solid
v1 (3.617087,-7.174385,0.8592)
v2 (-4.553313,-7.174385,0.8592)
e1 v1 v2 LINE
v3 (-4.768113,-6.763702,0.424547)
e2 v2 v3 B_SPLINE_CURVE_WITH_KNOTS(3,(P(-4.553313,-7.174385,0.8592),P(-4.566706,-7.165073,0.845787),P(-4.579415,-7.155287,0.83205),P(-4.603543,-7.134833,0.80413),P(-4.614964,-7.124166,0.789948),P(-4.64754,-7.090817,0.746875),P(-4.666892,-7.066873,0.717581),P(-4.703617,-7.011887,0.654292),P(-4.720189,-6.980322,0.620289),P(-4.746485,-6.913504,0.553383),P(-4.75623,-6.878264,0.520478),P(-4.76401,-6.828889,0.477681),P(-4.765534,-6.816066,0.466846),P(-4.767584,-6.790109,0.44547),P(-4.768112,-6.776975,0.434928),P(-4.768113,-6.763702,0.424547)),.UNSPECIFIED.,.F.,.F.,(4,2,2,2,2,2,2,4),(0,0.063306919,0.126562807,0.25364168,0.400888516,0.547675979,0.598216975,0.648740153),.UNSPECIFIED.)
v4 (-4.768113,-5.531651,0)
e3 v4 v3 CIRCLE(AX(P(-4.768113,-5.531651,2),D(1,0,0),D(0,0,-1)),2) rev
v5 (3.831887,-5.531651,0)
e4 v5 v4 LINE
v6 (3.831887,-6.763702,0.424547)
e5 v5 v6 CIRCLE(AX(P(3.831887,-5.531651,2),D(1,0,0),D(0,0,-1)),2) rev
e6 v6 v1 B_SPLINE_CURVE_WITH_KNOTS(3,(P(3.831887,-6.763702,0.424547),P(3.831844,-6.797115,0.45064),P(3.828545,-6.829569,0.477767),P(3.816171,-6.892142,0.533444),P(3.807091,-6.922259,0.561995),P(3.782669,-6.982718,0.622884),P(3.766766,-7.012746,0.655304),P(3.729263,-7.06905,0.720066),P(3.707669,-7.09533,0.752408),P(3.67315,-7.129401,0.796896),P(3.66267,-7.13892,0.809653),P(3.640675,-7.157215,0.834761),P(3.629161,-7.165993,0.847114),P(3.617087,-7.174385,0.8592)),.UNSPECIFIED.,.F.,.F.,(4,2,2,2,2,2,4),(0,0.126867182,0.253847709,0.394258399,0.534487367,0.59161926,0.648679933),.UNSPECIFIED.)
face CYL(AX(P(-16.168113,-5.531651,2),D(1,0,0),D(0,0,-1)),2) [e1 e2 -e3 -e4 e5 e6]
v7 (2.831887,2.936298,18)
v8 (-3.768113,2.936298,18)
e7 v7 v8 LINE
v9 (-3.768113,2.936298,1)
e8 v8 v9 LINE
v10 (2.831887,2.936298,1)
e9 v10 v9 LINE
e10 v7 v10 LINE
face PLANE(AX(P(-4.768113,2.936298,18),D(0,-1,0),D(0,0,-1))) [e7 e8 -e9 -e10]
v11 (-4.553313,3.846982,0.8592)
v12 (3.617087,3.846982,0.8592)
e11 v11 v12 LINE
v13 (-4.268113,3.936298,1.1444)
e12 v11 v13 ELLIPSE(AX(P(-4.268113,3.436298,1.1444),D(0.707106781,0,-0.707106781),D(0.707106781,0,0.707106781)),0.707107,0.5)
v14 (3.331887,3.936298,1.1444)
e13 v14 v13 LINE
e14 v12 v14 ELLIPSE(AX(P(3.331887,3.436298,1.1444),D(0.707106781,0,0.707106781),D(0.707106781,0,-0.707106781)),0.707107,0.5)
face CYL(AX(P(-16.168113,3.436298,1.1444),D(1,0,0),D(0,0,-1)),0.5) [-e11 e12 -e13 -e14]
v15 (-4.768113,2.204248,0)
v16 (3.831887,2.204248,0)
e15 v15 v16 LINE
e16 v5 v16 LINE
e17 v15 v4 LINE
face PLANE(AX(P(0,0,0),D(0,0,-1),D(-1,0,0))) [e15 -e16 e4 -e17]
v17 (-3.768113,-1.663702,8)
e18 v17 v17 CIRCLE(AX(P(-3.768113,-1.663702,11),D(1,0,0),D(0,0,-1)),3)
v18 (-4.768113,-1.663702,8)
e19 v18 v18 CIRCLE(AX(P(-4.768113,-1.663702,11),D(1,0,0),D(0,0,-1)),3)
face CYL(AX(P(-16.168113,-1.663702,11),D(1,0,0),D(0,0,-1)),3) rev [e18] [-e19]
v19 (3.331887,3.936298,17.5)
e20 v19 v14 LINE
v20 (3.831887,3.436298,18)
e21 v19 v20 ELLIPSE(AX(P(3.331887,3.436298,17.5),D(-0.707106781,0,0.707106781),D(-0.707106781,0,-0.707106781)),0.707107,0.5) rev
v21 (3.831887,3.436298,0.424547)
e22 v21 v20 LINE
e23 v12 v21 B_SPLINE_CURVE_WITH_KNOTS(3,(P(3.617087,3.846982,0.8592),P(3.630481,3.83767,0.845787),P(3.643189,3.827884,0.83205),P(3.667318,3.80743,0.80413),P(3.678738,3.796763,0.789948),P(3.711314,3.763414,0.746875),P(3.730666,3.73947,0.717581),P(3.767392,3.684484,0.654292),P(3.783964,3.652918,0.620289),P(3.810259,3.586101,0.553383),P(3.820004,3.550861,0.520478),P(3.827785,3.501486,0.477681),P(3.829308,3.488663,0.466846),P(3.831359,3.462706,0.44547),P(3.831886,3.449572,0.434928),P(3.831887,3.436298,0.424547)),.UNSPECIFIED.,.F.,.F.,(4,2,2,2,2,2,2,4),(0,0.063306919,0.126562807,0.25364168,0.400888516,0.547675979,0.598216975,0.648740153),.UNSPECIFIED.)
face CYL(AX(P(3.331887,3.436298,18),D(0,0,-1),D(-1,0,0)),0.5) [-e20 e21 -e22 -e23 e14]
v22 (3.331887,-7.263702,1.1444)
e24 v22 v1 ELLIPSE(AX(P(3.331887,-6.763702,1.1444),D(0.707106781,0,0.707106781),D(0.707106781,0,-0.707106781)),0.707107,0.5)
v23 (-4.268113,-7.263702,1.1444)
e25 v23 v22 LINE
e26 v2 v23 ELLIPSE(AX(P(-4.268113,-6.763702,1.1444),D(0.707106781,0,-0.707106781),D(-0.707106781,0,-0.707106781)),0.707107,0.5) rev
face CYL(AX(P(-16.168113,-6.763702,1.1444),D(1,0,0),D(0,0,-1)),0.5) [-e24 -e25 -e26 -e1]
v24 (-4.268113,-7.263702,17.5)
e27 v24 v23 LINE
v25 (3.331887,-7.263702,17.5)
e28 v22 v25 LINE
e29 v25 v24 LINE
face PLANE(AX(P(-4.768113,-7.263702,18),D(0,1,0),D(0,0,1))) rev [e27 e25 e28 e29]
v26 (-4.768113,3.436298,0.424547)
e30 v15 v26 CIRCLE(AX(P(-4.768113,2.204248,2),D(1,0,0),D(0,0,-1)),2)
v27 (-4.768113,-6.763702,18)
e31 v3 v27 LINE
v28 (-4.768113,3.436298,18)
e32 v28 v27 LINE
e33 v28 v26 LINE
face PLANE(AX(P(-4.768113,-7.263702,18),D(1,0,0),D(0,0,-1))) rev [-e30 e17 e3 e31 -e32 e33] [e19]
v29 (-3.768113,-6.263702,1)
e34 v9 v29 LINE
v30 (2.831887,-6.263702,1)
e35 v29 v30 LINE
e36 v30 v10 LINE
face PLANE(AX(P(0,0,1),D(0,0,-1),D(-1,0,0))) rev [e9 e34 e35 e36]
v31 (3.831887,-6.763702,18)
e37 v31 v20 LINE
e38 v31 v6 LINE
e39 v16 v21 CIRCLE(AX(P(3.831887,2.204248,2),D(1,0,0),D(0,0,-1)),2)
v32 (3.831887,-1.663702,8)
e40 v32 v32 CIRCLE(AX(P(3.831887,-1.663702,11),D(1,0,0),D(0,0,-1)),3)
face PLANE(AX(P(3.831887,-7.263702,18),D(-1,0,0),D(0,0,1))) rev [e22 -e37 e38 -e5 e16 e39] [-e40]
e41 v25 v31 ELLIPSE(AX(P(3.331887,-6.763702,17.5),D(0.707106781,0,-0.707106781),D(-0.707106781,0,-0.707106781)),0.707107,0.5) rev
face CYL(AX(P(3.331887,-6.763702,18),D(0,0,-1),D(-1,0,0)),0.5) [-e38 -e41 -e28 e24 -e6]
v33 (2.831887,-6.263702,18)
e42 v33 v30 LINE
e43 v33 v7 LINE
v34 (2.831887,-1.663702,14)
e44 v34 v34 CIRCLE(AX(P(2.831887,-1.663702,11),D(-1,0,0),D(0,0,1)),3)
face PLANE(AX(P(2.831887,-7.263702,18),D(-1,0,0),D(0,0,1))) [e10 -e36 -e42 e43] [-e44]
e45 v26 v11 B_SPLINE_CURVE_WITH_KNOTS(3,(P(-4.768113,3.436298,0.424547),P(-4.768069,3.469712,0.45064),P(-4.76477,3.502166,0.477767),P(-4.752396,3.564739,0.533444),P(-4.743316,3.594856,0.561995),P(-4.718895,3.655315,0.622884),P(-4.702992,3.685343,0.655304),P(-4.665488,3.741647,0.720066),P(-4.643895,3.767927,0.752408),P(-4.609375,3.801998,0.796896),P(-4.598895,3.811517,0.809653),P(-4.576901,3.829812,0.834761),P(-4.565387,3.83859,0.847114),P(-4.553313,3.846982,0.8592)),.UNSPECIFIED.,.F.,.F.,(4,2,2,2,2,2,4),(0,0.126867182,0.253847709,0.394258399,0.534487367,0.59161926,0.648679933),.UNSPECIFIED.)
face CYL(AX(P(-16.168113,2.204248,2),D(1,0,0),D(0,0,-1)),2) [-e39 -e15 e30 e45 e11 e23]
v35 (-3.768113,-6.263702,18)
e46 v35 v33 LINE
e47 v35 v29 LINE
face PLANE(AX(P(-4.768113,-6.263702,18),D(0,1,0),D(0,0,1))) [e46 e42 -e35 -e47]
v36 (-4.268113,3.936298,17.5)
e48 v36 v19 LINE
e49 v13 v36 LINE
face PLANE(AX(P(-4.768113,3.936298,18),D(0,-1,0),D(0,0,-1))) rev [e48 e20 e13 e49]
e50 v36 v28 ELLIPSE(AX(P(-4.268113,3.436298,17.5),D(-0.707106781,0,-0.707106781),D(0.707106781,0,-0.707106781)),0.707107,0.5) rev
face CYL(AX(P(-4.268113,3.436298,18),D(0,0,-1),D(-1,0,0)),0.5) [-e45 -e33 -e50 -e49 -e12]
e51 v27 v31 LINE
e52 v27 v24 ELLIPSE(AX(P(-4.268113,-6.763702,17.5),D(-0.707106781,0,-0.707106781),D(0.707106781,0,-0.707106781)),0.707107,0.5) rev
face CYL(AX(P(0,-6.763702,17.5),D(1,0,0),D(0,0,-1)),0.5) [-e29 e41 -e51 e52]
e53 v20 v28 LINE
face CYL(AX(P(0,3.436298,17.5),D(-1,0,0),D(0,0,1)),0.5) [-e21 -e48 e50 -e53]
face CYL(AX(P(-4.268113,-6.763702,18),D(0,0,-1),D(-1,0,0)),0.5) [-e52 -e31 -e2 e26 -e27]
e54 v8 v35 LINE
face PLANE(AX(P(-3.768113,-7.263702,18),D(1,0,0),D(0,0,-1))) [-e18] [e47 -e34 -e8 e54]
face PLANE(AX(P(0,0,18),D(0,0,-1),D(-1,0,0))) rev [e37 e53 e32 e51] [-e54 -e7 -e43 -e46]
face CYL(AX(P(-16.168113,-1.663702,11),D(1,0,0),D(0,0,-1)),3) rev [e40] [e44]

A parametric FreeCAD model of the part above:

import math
import FreeCAD as App
import Part
import Sketcher
from FreeCAD import Vector


def edges_at(feature, points):
    """Names of the edges that pass closest to the given points."""
    edges = feature.Shape.Edges
    near = lambda p: min(range(len(edges)), key=lambda i: edges[i].distToShape(Part.Vertex(*p))[0])
    return sorted({f"Edge{near(p) + 1}" for p in points})


def faces_at(feature, points):
    """Names of the faces that lie closest to the given points."""
    faces = feature.Shape.Faces
    near = lambda p: min(range(len(faces)), key=lambda i: faces[i].distToShape(Part.Vertex(*p))[0])
    return sorted({f"Face{near(p) + 1}" for p in points})

doc = App.newDocument("Part")
body = doc.addObject("PartDesign::Body", "Body")

# Sketch on XY plane
sketch1 = doc.addObject("Sketcher::SketchObject", "Sketch")
body.addObject(sketch1)
sketch1.AttachmentSupport = (doc.XY_Plane, [""])
sketch1.MapMode = "FlatFace"
sketch1.addGeometry(Part.LineSegment(Vector(-4.768113, 3.936298, 0), Vector(-4.768113, -7.263702, 0)), False)
sketch1.addGeometry(Part.LineSegment(Vector(-4.768113, -7.263702, 0), Vector(3.831887, -7.263702, 0)), False)
sketch1.addGeometry(Part.LineSegment(Vector(3.831887, -7.263702, 0), Vector(3.831887, 3.936298, 0)), False)
sketch1.addGeometry(Part.LineSegment(Vector(3.831887, 3.936298, 0), Vector(-4.768113, 3.936298, 0)), False)
sketch1.addConstraint(Sketcher.Constraint("Coincident", 0, 2, 1, 1))
sketch1.addConstraint(Sketcher.Constraint("Coincident", 1, 2, 2, 1))
sketch1.addConstraint(Sketcher.Constraint("Coincident", 2, 2, 3, 1))
sketch1.addConstraint(Sketcher.Constraint("Coincident", 3, 2, 0, 1))
sketch1.addConstraint(Sketcher.Constraint("Vertical", 0))
sketch1.addConstraint(Sketcher.Constraint("Horizontal", 1))
sketch1.addConstraint(Sketcher.Constraint("Vertical", 2))
sketch1.addConstraint(Sketcher.Constraint("Horizontal", 3))
sketch1.addConstraint(Sketcher.Constraint("DistanceX", 1, 1, 1, 2, 8.6))
sketch1.addConstraint(Sketcher.Constraint("DistanceY", 0, 2, 0, 1, 11.2))
sketch1.addConstraint(Sketcher.Constraint("DistanceY", 0, 2, -1, 1, 7.263702))
sketch1.addConstraint(Sketcher.Constraint("DistanceX", 0, 2, -1, 1, 4.768113))
pad1 = doc.addObject("PartDesign::Pad", "Pad")
body.addObject(pad1)
pad1.Profile = sketch1
pad1.Length = 18
doc.recompute()

thickness = doc.addObject("PartDesign::Thickness", "Thickness")
body.addObject(thickness)
thickness.Base = (pad1, faces_at(pad1, [(-0.468, -1.664, 18)]))
thickness.Value = 1
thickness.Reversed = True
thickness.Join = "Intersection"

# Sketch on YZ plane
sketch2 = doc.addObject("Sketcher::SketchObject", "Sketch001")
body.addObject(sketch2)
sketch2.AttachmentSupport = (doc.YZ_Plane, [""])
sketch2.MapMode = "FlatFace"
sketch2.AttachmentOffset = App.Placement(Vector(0, 0, 3.831887), App.Rotation())
sketch2.addGeometry(Part.ArcOfCircle(Part.Circle(Vector(2.204248, 2, 0), Vector(0, 0, 1), 2), math.radians(-90), math.radians(-30)), False)
sketch2.addGeometry(Part.LineSegment(Vector(2.204248, 0, 0), Vector(3.936298, 0, 0)), False)
sketch2.addGeometry(Part.LineSegment(Vector(3.936298, 0, 0), Vector(3.936298, 1, 0)), False)
sketch2.addGeometry(Part.LineSegment(Vector(-7.263702, 1, 0), Vector(-7.263702, 0, 0)), False)
sketch2.addGeometry(Part.LineSegment(Vector(-7.263702, 0, 0), Vector(-5.531651, 0, 0)), False)
sketch2.addGeometry(Part.ArcOfCircle(Part.Circle(Vector(-5.531651, 2, 0), Vector(0, 0, 1), 2), math.radians(-150), math.radians(-90)), False)
sketch2.addGeometry(Part.Circle(Vector(-1.663702, 11, 0), Vector(0, 0, 1), 3), False)
sketch2.addConstraint(Sketcher.Constraint("Tangent", 0, 1, 1, 1))
sketch2.addConstraint(Sketcher.Constraint("Coincident", 1, 2, 2, 1))
sketch2.addConstraint(Sketcher.Constraint("Coincident", 2, 2, 0, 2))
sketch2.addConstraint(Sketcher.Constraint("Coincident", 3, 2, 4, 1))
sketch2.addConstraint(Sketcher.Constraint("Tangent", 4, 2, 5, 2))
sketch2.addConstraint(Sketcher.Constraint("Coincident", 5, 1, 3, 1))
sketch2.addConstraint(Sketcher.Constraint("Horizontal", 1))
sketch2.addConstraint(Sketcher.Constraint("Vertical", 2))
sketch2.addConstraint(Sketcher.Constraint("Vertical", 3))
sketch2.addConstraint(Sketcher.Constraint("Horizontal", 4))
sketch2.addConstraint(Sketcher.Constraint("Equal", 0, 5))
sketch2.addConstraint(Sketcher.Constraint("PointOnObject", 0, 1, -1))
sketch2.addConstraint(Sketcher.Constraint("PointOnObject", 3, 2, -1))
sketch2.addConstraint(Sketcher.Constraint("Horizontal", 2, 2, 5, 1))
sketch2.addConstraint(Sketcher.Constraint("Diameter", 6, 6.0))
sketch2.addConstraint(Sketcher.Constraint("Radius", 0, 2.0))
sketch2.addConstraint(Sketcher.Constraint("DistanceY", 2, 1, 2, 2, 1.0))
sketch2.addConstraint(Sketcher.Constraint("DistanceY", -1, 1, 6, 3, 11.0))
sketch2.addConstraint(Sketcher.Constraint("DistanceX", 6, 3, 1, 2, 5.6))
sketch2.addConstraint(Sketcher.Constraint("DistanceX", 3, 2, 1, 2, 11.2))
sketch2.addConstraint(Sketcher.Constraint("DistanceX", 6, 3, -1, 1, 1.663702))
pocket1 = doc.addObject("PartDesign::Pocket", "Pocket")
body.addObject(pocket1)
pocket1.Profile = sketch2
pocket1.Length = 20
doc.recompute()

fillet = doc.addObject("PartDesign::Fillet", "Fillet")
body.addObject(fillet)
fillet.Base = (pocket1, edges_at(pocket1, [
    (-0.468, 3.936, 18),
    (-0.468, 3.936, 1),
    (-0.468, -7.264, 1),
    (-4.768, 3.936, 9.5),
    (3.832, 3.936, 9.5),
    (3.832, -7.264, 9.5),
    (-4.768, -7.264, 9.5),
    (-0.468, -7.264, 18),
]))
fillet.Radius = 0.5

doc.recompute()
